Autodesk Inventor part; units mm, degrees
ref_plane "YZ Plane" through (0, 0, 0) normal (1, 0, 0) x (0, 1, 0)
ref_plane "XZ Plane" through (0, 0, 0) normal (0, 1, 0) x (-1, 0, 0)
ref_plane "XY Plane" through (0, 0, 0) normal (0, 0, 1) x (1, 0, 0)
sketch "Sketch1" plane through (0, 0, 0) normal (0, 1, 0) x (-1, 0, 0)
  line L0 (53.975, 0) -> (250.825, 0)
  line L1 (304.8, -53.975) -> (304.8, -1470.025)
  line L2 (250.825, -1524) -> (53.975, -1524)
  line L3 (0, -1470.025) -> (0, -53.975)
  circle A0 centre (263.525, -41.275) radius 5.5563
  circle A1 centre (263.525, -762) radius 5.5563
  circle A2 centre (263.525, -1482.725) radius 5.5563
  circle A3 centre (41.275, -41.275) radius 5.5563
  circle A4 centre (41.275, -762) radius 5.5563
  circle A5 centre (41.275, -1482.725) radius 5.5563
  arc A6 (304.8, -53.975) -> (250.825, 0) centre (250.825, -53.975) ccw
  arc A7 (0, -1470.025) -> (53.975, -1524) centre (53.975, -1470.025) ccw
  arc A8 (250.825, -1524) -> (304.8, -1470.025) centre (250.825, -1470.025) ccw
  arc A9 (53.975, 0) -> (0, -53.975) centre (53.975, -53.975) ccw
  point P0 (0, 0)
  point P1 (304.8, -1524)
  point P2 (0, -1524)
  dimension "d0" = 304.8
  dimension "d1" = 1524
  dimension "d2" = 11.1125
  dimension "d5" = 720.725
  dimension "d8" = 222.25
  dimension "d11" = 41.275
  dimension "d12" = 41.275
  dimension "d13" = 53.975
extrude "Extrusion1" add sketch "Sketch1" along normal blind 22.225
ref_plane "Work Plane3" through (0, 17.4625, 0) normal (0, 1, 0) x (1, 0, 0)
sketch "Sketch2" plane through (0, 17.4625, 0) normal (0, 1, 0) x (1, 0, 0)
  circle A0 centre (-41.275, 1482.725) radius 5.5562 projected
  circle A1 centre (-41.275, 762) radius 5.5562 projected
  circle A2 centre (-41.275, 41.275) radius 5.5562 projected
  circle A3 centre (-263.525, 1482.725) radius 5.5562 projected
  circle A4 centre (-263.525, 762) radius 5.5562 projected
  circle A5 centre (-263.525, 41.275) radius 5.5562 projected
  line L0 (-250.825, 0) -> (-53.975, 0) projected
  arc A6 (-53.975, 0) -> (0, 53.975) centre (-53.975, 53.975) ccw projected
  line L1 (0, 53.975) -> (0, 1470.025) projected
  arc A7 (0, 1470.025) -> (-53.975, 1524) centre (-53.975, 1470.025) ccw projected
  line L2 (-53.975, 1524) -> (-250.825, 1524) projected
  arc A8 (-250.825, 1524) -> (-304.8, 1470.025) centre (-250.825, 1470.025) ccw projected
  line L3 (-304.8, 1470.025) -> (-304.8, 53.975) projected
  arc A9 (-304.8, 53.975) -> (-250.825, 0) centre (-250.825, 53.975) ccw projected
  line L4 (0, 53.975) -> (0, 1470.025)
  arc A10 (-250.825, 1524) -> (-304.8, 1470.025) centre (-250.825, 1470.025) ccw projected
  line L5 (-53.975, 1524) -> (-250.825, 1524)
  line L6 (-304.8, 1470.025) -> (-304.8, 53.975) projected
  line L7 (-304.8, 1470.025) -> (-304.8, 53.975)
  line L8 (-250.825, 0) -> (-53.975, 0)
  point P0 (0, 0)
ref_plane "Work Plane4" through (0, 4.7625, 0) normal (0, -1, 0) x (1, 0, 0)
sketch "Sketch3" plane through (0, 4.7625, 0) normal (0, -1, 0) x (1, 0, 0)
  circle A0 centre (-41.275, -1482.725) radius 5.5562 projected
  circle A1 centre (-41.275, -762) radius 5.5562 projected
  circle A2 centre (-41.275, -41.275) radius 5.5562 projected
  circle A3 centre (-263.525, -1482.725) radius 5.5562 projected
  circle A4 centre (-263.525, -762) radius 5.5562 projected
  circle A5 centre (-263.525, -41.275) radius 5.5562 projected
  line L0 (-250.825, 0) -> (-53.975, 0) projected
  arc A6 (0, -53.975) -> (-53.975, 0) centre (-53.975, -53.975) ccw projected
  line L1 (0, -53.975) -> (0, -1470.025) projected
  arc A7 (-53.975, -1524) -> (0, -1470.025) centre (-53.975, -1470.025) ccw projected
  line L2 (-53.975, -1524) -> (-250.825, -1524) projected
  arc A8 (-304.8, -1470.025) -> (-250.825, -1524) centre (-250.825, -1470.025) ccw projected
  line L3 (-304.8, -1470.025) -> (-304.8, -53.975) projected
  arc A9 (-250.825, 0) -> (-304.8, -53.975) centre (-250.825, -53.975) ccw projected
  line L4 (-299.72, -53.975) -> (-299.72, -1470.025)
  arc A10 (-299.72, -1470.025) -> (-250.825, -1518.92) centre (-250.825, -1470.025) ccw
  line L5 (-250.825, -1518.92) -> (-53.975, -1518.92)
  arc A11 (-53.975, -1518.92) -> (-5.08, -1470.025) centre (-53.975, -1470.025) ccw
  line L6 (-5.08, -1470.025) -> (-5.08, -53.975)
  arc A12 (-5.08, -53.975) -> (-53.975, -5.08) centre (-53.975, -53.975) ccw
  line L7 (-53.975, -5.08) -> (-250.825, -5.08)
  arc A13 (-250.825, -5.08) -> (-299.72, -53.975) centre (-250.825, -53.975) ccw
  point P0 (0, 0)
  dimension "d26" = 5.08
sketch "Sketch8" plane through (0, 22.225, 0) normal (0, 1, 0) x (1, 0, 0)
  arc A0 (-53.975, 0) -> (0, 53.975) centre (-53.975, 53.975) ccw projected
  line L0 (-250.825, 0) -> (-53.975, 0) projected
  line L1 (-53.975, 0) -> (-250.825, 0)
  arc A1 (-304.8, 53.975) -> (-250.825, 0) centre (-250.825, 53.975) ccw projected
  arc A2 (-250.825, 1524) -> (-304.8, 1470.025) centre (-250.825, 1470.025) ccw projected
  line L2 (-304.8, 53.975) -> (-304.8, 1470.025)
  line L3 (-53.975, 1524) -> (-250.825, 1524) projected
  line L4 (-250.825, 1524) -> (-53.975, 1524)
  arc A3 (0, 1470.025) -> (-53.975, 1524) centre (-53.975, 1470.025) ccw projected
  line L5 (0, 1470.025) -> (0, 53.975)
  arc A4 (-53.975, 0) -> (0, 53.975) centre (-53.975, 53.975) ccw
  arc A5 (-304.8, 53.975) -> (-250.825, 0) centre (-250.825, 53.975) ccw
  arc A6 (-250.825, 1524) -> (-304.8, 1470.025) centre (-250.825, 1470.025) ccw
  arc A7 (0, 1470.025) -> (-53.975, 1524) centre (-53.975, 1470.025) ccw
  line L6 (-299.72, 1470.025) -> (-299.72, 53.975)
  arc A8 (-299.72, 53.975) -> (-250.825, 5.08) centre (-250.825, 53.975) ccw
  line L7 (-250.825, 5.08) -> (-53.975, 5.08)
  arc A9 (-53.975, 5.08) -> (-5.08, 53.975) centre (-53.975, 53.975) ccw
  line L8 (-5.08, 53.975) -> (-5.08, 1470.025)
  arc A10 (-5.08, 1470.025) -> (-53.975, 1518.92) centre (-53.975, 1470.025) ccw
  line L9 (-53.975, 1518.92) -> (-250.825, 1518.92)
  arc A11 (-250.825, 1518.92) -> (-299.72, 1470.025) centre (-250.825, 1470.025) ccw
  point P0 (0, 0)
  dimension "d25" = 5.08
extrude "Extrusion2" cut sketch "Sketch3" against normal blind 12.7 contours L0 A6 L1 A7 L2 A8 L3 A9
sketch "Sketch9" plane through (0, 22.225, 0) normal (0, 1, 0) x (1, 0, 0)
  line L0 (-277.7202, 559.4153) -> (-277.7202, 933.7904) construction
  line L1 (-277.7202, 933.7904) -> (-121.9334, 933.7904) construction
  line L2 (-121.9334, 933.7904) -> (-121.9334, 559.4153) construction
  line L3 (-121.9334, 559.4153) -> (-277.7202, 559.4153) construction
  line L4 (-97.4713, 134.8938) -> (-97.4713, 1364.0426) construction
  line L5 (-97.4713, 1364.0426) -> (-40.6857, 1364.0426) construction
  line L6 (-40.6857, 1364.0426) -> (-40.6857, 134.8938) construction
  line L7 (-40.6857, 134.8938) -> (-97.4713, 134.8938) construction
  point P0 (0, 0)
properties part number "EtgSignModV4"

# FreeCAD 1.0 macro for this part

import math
import FreeCAD as App
import Part
import Sketcher
from FreeCAD import Vector
Q = App.Units.Quantity

doc = App.newDocument("Part")
params = doc.addObject("Spreadsheet::Sheet", "Params")
for row, (alias, value) in enumerate([
    ("sketch1_diameter", "0.4375 in"),
    ("sketch1_radius", "2.125 in"),
    ("pad1_length", "0.875 in"),
    ("sketch2_radius", "2.125 in"),
    ("pocket1_length", "0.5 in"),
], start=1):
    params.set(f"A{row}", alias)
    params.set(f"B{row}", "=" + value)
    params.setAlias(f"B{row}", alias)

body = doc.addObject("PartDesign::Body", "Body")

sketch1 = doc.addObject("Sketcher::SketchObject", "Sketch")
body.addObject(sketch1)
sketch1.AttachmentSupport = (doc.XZ_Plane, [""])
sketch1.MapMode = "FlatFace"
sketch1.addGeometry([
    Part.LineSegment(Vector(-251, 0, 0), Vector(-54, 0, 0)),
    Part.ArcOfCircle(Part.Circle(Vector(-54, -54, 0), Vector(0, 0, 1), 54), math.radians(0), math.radians(90)),
    Part.LineSegment(Vector(0, -54, 0), Vector(0, -1470, 0)),
    Part.ArcOfCircle(Part.Circle(Vector(-54, -1470, 0), Vector(0, 0, 1), 54), math.radians(-90), math.radians(0)),
    Part.LineSegment(Vector(-54, -1524, 0), Vector(-251, -1524, 0)),
    Part.ArcOfCircle(Part.Circle(Vector(-251, -1470, 0), Vector(0, 0, 1), 54), math.radians(180), math.radians(270)),
    Part.LineSegment(Vector(-305, -1470, 0), Vector(-305, -54, 0)),
    Part.ArcOfCircle(Part.Circle(Vector(-251, -54, 0), Vector(0, 0, 1), 54), math.radians(90), math.radians(180)),
    Part.Circle(Vector(-41, -1483, 0), Vector(0, 0, 1), 6),
    Part.Circle(Vector(-264, -1483, 0), Vector(0, 0, 1), 6),
    Part.Circle(Vector(-41, -762, 0), Vector(0, 0, 1), 6),
    Part.Circle(Vector(-41, -41, 0), Vector(0, 0, 1), 6),
    Part.Circle(Vector(-264, -762, 0), Vector(0, 0, 1), 6),
    Part.Circle(Vector(-264, -41, 0), Vector(0, 0, 1), 6),
], False)
sketch1.addConstraint([
    Sketcher.Constraint("Tangent", 0, 2, 1, 2),
    Sketcher.Constraint("Tangent", 1, 1, 2, 1),
    Sketcher.Constraint("Tangent", 2, 2, 3, 2),
    Sketcher.Constraint("Tangent", 3, 1, 4, 1),
    Sketcher.Constraint("Tangent", 4, 2, 5, 2),
    Sketcher.Constraint("Tangent", 5, 1, 6, 1),
    Sketcher.Constraint("Tangent", 6, 2, 7, 2),
    Sketcher.Constraint("Tangent", 7, 1, 0, 1),
    Sketcher.Constraint("Horizontal", 0),
    Sketcher.Constraint("Vertical", 2),
    Sketcher.Constraint("Horizontal", 4),
    Sketcher.Constraint("Vertical", 6),
    Sketcher.Constraint("Equal", 1, 3),
    Sketcher.Constraint("Equal", 3, 5),
    Sketcher.Constraint("Equal", 5, 7),
    Sketcher.Constraint("Equal", 8, 9),
    Sketcher.Constraint("Equal", 9, 10),
    Sketcher.Constraint("Equal", 10, 11),
    Sketcher.Constraint("Equal", 11, 12),
    Sketcher.Constraint("Equal", 12, 13),
    Sketcher.Constraint("PointOnObject", 0, 2, -1),
    Sketcher.Constraint("PointOnObject", 1, 1, -2),
    Sketcher.Constraint("Horizontal", 8, 3, 9, 3),
    Sketcher.Constraint("Horizontal", 10, 3, 12, 3),
    Sketcher.Constraint("Horizontal", 11, 3, 13, 3),
    Sketcher.Constraint("Vertical", 8, 3, 10, 3),
    Sketcher.Constraint("Vertical", 10, 3, 11, 3),
    Sketcher.Constraint("Vertical", 9, 3, 12, 3),
    Sketcher.Constraint("Vertical", 12, 3, 13, 3),
    Sketcher.Constraint("Diameter", 8, Q("0.4375 in")),
    Sketcher.Constraint("DistanceY", 3, 1, -1, 1, Q("60 in")),
    Sketcher.Constraint("DistanceX", 5, 1, -1, 1, Q("12 in")),
    Sketcher.Constraint("Radius", 1, Q("2.125 in")),
    Sketcher.Constraint("DistanceX", 9, 3, 8, 3, Q("8.75 in")),
    Sketcher.Constraint("DistanceX", 8, 3, -1, 1, Q("1.625 in")),
    Sketcher.Constraint("DistanceY", 10, 3, -1, 1, Q("30 in")),
    Sketcher.Constraint("DistanceY", 11, 3, -1, 1, Q("1.625 in")),
    Sketcher.Constraint("DistanceY", 8, 3, 10, 3, Q("28.375 in")),
])
sketch1.setExpression("Constraints[29]", "Params.sketch1_diameter")
sketch1.setExpression("Constraints[32]", "Params.sketch1_radius")
pad1 = doc.addObject("PartDesign::Pad", "Pad")
body.addObject(pad1)
pad1.Profile = sketch1
pad1.setExpression("Length", "Params.pad1_length")
pad1.Reversed = True

sketch2 = doc.addObject("Sketcher::SketchObject", "Sketch001")
body.addObject(sketch2)
sketch2.AttachmentSupport = (doc.XZ_Plane, [""])
sketch2.MapMode = "FlatFace"
sketch2.AttachmentOffset = App.Placement(Vector(0, 0, -0.1875 * 25.4), App.Rotation())
sketch2.addGeometry([
    Part.LineSegment(Vector(-54, 0, 0), Vector(-251, 0, 0)),
    Part.ArcOfCircle(Part.Circle(Vector(-251, -54, 0), Vector(0, 0, 1), 54), math.radians(90), math.radians(180)),
    Part.LineSegment(Vector(-305, -54, 0), Vector(-305, -1470, 0)),
    Part.ArcOfCircle(Part.Circle(Vector(-251, -1470, 0), Vector(0, 0, 1), 54), math.radians(180), math.radians(270)),
    Part.LineSegment(Vector(-251, -1524, 0), Vector(-54, -1524, 0)),
    Part.ArcOfCircle(Part.Circle(Vector(-54, -1470, 0), Vector(0, 0, 1), 54), math.radians(-90), math.radians(0)),
    Part.LineSegment(Vector(0, -1470, 0), Vector(0, -54, 0)),
    Part.ArcOfCircle(Part.Circle(Vector(-54, -54, 0), Vector(0, 0, 1), 54), math.radians(0), math.radians(90)),
    Part.LineSegment(Vector(-300, -1470, 0), Vector(-300, -54, 0)),
    Part.ArcOfCircle(Part.Circle(Vector(-251, -54, 0), Vector(0, 0, 1), 49), math.radians(90), math.radians(180)),
    Part.LineSegment(Vector(-251, -5, 0), Vector(-54, -5, 0)),
    Part.ArcOfCircle(Part.Circle(Vector(-54, -54, 0), Vector(0, 0, 1), 49), math.radians(0), math.radians(90)),
    Part.LineSegment(Vector(-5, -54, 0), Vector(-5, -1470, 0)),
    Part.ArcOfCircle(Part.Circle(Vector(-54, -1470, 0), Vector(0, 0, 1), 49), math.radians(-90), math.radians(0)),
    Part.LineSegment(Vector(-54, -1519, 0), Vector(-251, -1519, 0)),
    Part.ArcOfCircle(Part.Circle(Vector(-251, -1470, 0), Vector(0, 0, 1), 49), math.radians(180), math.radians(270)),
], False)
sketch2.addConstraint([
    Sketcher.Constraint("Tangent", 0, 2, 1, 1),
    Sketcher.Constraint("Tangent", 1, 2, 2, 1),
    Sketcher.Constraint("Tangent", 2, 2, 3, 1),
    Sketcher.Constraint("Tangent", 3, 2, 4, 1),
    Sketcher.Constraint("Tangent", 4, 2, 5, 1),
    Sketcher.Constraint("Tangent", 5, 2, 6, 1),
    Sketcher.Constraint("Tangent", 6, 2, 7, 1),
    Sketcher.Constraint("Tangent", 7, 2, 0, 1),
    Sketcher.Constraint("Tangent", 8, 2, 9, 2),
    Sketcher.Constraint("Tangent", 9, 1, 10, 1),
    Sketcher.Constraint("Tangent", 10, 2, 11, 2),
    Sketcher.Constraint("Tangent", 11, 1, 12, 1),
    Sketcher.Constraint("Tangent", 12, 2, 13, 2),
    Sketcher.Constraint("Tangent", 13, 1, 14, 1),
    Sketcher.Constraint("Tangent", 14, 2, 15, 2),
    Sketcher.Constraint("Tangent", 15, 1, 8, 1),
    Sketcher.Constraint("Horizontal", 0),
    Sketcher.Constraint("Vertical", 2),
    Sketcher.Constraint("Horizontal", 4),
    Sketcher.Constraint("Vertical", 6),
    Sketcher.Constraint("Vertical", 8),
    Sketcher.Constraint("Horizontal", 10),
    Sketcher.Constraint("Vertical", 12),
    Sketcher.Constraint("Horizontal", 14),
    Sketcher.Constraint("Coincident", 9, 3, 1, 3),
    Sketcher.Constraint("Coincident", 11, 3, 7, 3),
    Sketcher.Constraint("Coincident", 13, 3, 5, 3),
    Sketcher.Constraint("Equal", 1, 3),
    Sketcher.Constraint("Equal", 3, 5),
    Sketcher.Constraint("Equal", 5, 7),
    Sketcher.Constraint("Equal", 13, 15),
    Sketcher.Constraint("PointOnObject", 0, 2, -1),
    Sketcher.Constraint("PointOnObject", 5, 2, -2),
    Sketcher.Constraint("DistanceY", 9, 1, -1, 1, Q("0.2 in")),
    Sketcher.Constraint("DistanceX", 1, 2, -1, 1, Q("12 in")),
    Sketcher.Constraint("DistanceY", 3, 2, -1, 1, Q("60 in")),
    Sketcher.Constraint("Radius", 1, Q("2.125 in")),
])
sketch2.setExpression("Constraints[36]", "Params.sketch2_radius")
pocket1 = doc.addObject("PartDesign::Pocket", "Pocket")
body.addObject(pocket1)
pocket1.Profile = sketch2
pocket1.setExpression("Length", "Params.pocket1_length")

doc.recompute()
